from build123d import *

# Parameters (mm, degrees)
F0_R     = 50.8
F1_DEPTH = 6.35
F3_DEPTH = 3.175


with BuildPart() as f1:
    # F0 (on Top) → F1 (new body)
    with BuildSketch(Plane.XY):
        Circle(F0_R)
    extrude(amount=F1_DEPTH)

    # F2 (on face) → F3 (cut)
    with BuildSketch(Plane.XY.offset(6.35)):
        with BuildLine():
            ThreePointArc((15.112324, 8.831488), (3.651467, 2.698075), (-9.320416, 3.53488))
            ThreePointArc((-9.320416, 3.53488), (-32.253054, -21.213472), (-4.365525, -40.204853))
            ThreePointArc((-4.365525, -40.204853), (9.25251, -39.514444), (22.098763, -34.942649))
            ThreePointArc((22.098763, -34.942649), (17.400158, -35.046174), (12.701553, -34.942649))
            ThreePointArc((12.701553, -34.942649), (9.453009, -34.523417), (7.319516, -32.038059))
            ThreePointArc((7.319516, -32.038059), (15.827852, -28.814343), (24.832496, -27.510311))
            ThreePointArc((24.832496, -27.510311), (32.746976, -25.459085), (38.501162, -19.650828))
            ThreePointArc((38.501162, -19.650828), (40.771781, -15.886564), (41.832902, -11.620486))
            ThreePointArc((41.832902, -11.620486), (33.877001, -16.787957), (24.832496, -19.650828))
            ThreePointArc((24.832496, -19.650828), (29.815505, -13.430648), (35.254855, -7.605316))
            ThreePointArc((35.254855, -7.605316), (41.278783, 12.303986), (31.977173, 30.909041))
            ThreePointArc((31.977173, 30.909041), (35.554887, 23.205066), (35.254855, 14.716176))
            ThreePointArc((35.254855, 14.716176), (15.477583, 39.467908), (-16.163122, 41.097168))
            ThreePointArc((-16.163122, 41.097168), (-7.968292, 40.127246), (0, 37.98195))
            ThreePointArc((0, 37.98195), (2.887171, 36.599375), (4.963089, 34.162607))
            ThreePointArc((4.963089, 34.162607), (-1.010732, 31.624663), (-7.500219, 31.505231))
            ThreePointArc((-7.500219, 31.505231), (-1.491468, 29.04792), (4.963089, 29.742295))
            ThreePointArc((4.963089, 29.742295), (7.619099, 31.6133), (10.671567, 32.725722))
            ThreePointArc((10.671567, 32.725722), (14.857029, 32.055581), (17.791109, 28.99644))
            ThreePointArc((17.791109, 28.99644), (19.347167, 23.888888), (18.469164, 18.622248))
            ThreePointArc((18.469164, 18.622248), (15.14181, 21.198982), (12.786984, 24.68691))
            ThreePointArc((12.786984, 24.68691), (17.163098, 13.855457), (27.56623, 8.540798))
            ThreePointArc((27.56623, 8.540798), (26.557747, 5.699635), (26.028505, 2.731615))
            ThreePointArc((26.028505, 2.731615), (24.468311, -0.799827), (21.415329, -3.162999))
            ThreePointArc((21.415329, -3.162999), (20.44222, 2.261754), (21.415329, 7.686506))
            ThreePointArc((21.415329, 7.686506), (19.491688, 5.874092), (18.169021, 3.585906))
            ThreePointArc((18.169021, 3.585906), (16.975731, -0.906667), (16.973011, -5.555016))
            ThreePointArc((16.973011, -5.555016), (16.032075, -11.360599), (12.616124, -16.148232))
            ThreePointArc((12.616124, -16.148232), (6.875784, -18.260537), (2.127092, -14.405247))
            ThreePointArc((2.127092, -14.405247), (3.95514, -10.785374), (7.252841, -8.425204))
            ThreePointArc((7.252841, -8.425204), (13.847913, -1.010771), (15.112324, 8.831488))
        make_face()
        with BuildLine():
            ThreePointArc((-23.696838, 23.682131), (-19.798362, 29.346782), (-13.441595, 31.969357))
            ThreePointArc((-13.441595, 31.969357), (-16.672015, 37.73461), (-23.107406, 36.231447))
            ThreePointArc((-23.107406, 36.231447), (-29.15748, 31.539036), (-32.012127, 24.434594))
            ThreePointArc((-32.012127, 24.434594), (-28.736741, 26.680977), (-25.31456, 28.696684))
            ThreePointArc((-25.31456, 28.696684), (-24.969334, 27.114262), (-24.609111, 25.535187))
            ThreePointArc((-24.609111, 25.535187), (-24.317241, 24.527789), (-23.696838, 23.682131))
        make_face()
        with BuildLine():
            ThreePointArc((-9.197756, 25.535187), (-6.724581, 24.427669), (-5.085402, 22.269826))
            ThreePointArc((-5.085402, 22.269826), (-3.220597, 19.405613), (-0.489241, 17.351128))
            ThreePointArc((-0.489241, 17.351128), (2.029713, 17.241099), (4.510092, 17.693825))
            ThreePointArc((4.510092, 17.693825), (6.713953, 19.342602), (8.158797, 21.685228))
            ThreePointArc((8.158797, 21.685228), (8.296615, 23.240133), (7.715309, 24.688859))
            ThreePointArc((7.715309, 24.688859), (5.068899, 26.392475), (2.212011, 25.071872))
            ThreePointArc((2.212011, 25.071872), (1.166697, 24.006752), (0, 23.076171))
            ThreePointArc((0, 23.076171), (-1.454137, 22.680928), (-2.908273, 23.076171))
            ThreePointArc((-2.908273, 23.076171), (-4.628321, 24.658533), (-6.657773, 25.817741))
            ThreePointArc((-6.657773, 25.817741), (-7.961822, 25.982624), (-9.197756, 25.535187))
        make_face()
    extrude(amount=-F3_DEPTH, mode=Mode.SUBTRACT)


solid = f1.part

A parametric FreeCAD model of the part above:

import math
import FreeCAD as App
import Part
import Sketcher
from FreeCAD import Vector
Q = App.Units.Quantity

doc = App.newDocument("Part")
body = doc.addObject("PartDesign::Body", "Body")

sketch1 = doc.addObject("Sketcher::SketchObject", "Sketch")
body.addObject(sketch1)
sketch1.AttachmentSupport = (doc.XY_Plane, [""])
sketch1.MapMode = "FlatFace"
sketch1.addGeometry(Part.Circle(Vector(0, 0, 0), Vector(0, 0, 1), 51), False)
sketch1.addConstraint([
    Sketcher.Constraint("Coincident", 0, 3, -1, 1),
    Sketcher.Constraint("Diameter", 0, Q("4 in")),
])
pad1 = doc.addObject("PartDesign::Pad", "Pad")
body.addObject(pad1)
pad1.Profile = sketch1
pad1.Length = Q("0.25 in")

sketch2 = doc.addObject("Sketcher::SketchObject", "Sketch001")
body.addObject(sketch2)
sketch2.AttachmentSupport = (doc.XY_Plane, [""])
sketch2.MapMode = "FlatFace"
sketch2.AttachmentOffset = App.Placement(Vector(0, 0, 0.25 * 25.4), App.Rotation())
sketch2.addGeometry([
    Part.ArcOfCircle(Part.Circle(Vector(-1.367846, 25.851681, 0), Vector(0, 0, 1), 23.691412), math.radians(-109.613475), math.radians(-45.923523)),
    Part.ArcOfCircle(Part.Circle(Vector(-10.13657, -18.70809, 0), Vector(0, 0, 1), 22.257938), math.radians(87.898607), math.radians(285.027363)),
    Part.ArcOfCircle(Part.Circle(Vector(0.0898, 6.565982, 0), Vector(0, 0, 1), 46.982559), math.radians(-95.441497), math.radians(-62.066293)),
    Part.ArcOfCircle(Part.Circle(Vector(17.400158, 71.631471, 0), Vector(0, 0, 1), 106.677645), math.radians(-92.524403), math.radians(-87.475597)),
    Part.ArcOfCircle(Part.Circle(Vector(11.623308, -30.501977, 0), Vector(0, 0, 1), 4.569702), math.radians(-160.357832), math.radians(-76.352068)),
    Part.ArcOfCircle(Part.Circle(Vector(26.278416, -69.236319, 0), Vector(0, 0, 1), 41.751053), math.radians(91.984661), math.radians(117.006651)),
    Part.ArcOfCircle(Part.Circle(Vector(25.058396, -12.087643, 0), Vector(0, 0, 1), 15.424322), math.radians(-90.839168), math.radians(-29.363028)),
    Part.ArcOfCircle(Part.Circle(Vector(27.140244, -10.230922, 0), Vector(0, 0, 1), 14.758221), math.radians(-39.663828), math.radians(-5.402701)),
    Part.ArcOfCircle(Part.Circle(Vector(18.795437, 15.140038, 0), Vector(0, 0, 1), 35.31077), math.radians(-80.155816), math.radians(-49.275664)),
    Part.ArcOfCircle(Part.Circle(Vector(109.417519, -82.306157, 0), Vector(0, 0, 1), 105.263082), math.radians(134.792863), math.radians(143.471251)),
    Part.ArcOfCircle(Part.Circle(Vector(13.24995, 9.918652, 0), Vector(0, 0, 1), 28.13015), math.radians(-38.532639), math.radians(48.261267)),
    Part.ArcOfCircle(Part.Circle(Vector(17.680728, 19.587064, 0), Vector(0, 0, 1), 18.236652), math.radians(-15.491377), math.radians(38.377235)),
    Part.ArcOfCircle(Part.Circle(Vector(-2.154281, 5.102453, 0), Vector(0, 0, 1), 38.624696), math.radians(14.412485), math.radians(111.26557)),
    Part.ArcOfCircle(Part.Circle(Vector(-18.734633, -15.733267, 0), Vector(0, 0, 1), 56.888584), math.radians(70.772402), math.radians(87.4092)),
    Part.ArcOfCircle(Part.Circle(Vector(-1.810964, 30.49433, 0), Vector(0, 0, 1), 7.703509), math.radians(28.436381), math.radians(76.403487)),
    Part.ArcOfCircle(Part.Circle(Vector(-4.56321, 48.286069, 0), Vector(0, 0, 1), 17.035919), math.radians(-99.927447), math.radians(-56.000269)),
    Part.ArcOfCircle(Part.Circle(Vector(0.362861, 42.157346, 0), Vector(0, 0, 1), 13.239924), math.radians(-126.433662), math.radians(-69.6685)),
    Part.ArcOfCircle(Part.Circle(Vector(13.330927, 20.684309, 0), Vector(0, 0, 1), 12.331578), math.radians(102.453926), math.radians(132.731992)),
    Part.ArcOfCircle(Part.Circle(Vector(11.765743, 26.154034, 0), Vector(0, 0, 1), 6.662155), math.radians(25.255126), math.radians(99.452947)),
    Part.ArcOfCircle(Part.Circle(Vector(7.684711, 23.126633, 0), Vector(0, 0, 1), 11.68734), math.radians(-22.669023), math.radians(30.148066)),
    Part.ArcOfCircle(Part.Circle(Vector(24.839711, 30.285263, 0), Vector(0, 0, 1), 13.289461), math.radians(-155.085675), math.radians(-118.644156)),
    Part.ArcOfCircle(Part.Circle(Vector(29.483531, 25.132891, 0), Vector(0, 0, 1), 16.702502), math.radians(-178.469939), math.radians(-96.591585)),
    Part.ArcOfCircle(Part.Circle(Vector(44.28176, 1.007985, 0), Vector(0, 0, 1), 18.334455), math.radians(155.741406), math.radians(174.605632)),
    Part.ArcOfCircle(Part.Circle(Vector(18.276059, 4.046283, 0), Vector(0, 0, 1), 7.863127), math.radians(-66.469365), math.radians(-9.624718)),
    Part.ArcOfCircle(Part.Circle(Vector(36.049352, 2.261754, 0), Vector(0, 0, 1), 15.607132), math.radians(159.660531), math.radians(200.339469)),
    Part.ArcOfCircle(Part.Circle(Vector(26.636788, 0.217555, 0), Vector(0, 0, 1), 9.113115), math.radians(124.956959), math.radians(158.308076)),
    Part.ArcOfCircle(Part.Circle(Vector(34.818846, -3.241283, 0), Vector(0, 0, 1), 17.995199), math.radians(157.704129), math.radians(187.387255)),
    Part.ArcOfCircle(Part.Circle(Vector(4.078418, -6.444176, 0), Vector(0, 0, 1), 12.925213), math.radians(-48.658425), math.radians(3.944644)),
    Part.ArcOfCircle(Part.Circle(Vector(7.889592, -12.159588, 0), Vector(0, 0, 1), 6.184609), math.radians(-158.709023), math.radians(-40.160482)),
    Part.ArcOfCircle(Part.Circle(Vector(10.405775, -16.314488, 0), Vector(0, 0, 1), 8.495987), math.radians(111.784006), math.radians(167.013428)),
    Part.ArcOfCircle(Part.Circle(Vector(-1.450816, 5.956967, 0), Vector(0, 0, 1), 16.810725), math.radians(-58.818935), math.radians(9.845576)),
    Part.ArcOfCircle(Part.Circle(Vector(-12.199454, 19.943316, 0), Vector(0, 0, 1), 12.09002), math.radians(95.897033), math.radians(161.986079)),
    Part.ArcOfCircle(Part.Circle(Vector(-18.890229, 32.704017, 0), Vector(0, 0, 1), 5.49794), math.radians(-7.679094), math.radians(140.089422)),
    Part.ArcOfCircle(Part.Circle(Vector(-17.470739, 22.717432, 0), Vector(0, 0, 1), 14.642425), math.radians(112.640915), math.radians(173.265251)),
    Part.ArcOfCircle(Part.Circle(Vector(2.236825, -21.991747, 0), Vector(0, 0, 1), 57.692251), math.radians(118.52602), math.radians(126.416388)),
    Part.ArcOfCircle(Part.Circle(Vector(141.650699, 64.293464, 0), Vector(0, 0, 1), 170.717686), math.radians(-167.964802), math.radians(-166.877639)),
    Part.ArcOfCircle(Part.Circle(Vector(-21.622118, 25.854618, 0), Vector(0, 0, 1), 3.004024), math.radians(-173.89595), math.radians(-133.68133)),
    Part.ArcOfCircle(Part.Circle(Vector(-10.129311, 20.139795, 0), Vector(0, 0, 1), 5.475221), math.radians(22.894221), math.radians(80.204033)),
    Part.ArcOfCircle(Part.Circle(Vector(3.975893, 26.130203, 0), Vector(0, 0, 1), 9.849344), math.radians(-156.924577), math.radians(-116.958389)),
    Part.ArcOfCircle(Part.Circle(Vector(1.258967, 28.484903, 0), Vector(0, 0, 1), 11.270189), math.radians(-98.923634), math.radians(-73.23355)),
    Part.ArcOfCircle(Part.Circle(Vector(1.276855, 24.312876, 0), Vector(0, 0, 1), 7.366523), math.radians(-63.965675), math.radians(-20.897749)),
    Part.ArcOfCircle(Part.Circle(Vector(4.980449, 22.750499, 0), Vector(0, 0, 1), 3.352119), math.radians(-18.529349), math.radians(35.327495)),
    Part.ArcOfCircle(Part.Circle(Vector(4.842033, 23.132775, 0), Vector(0, 0, 1), 3.267585), math.radians(28.438708), math.radians(143.598903)),
    Part.ArcOfCircle(Part.Circle(Vector(-7.066671, 33.132518, 0), Vector(0, 0, 1), 12.290971), math.radians(-54.903997), math.radians(-40.981743)),
    Part.ArcOfCircle(Part.Circle(Vector(-1.454136, 25.553503, 0), Vector(0, 0, 1), 2.872575), math.radians(-120.411951), math.radians(-59.588049)),
    Part.ArcOfCircle(Part.Circle(Vector(-10.778818, 16.246824, 0), Vector(0, 0, 1), 10.420435), math.radians(40.948485), math.radians(66.704255)),
    Part.ArcOfCircle(Part.Circle(Vector(-7.651776, 23.195499, 0), Vector(0, 0, 1), 2.804318), math.radians(69.239989), math.radians(123.455264)),
], False)
sketch2.addConstraint([
    Sketcher.Constraint("Coincident", 0, 1, 1, 1),
    Sketcher.Constraint("Coincident", 1, 2, 2, 1),
    Sketcher.Constraint("Coincident", 2, 2, 3, 2),
    Sketcher.Constraint("Coincident", 3, 1, 4, 2),
    Sketcher.Constraint("Coincident", 4, 1, 5, 2),
    Sketcher.Constraint("Coincident", 5, 1, 6, 1),
    Sketcher.Constraint("Coincident", 6, 2, 7, 1),
    Sketcher.Constraint("Coincident", 7, 2, 8, 2),
    Sketcher.Constraint("Coincident", 8, 1, 9, 2),
    Sketcher.Constraint("Coincident", 9, 1, 10, 1),
    Sketcher.Constraint("Coincident", 10, 2, 11, 2),
    Sketcher.Constraint("Coincident", 11, 1, 12, 1),
    Sketcher.Constraint("Coincident", 12, 2, 13, 2),
    Sketcher.Constraint("Coincident", 13, 1, 14, 2),
    Sketcher.Constraint("Coincident", 14, 1, 15, 2),
    Sketcher.Constraint("Coincident", 15, 1, 16, 1),
    Sketcher.Constraint("Coincident", 16, 2, 17, 2),
    Sketcher.Constraint("Coincident", 17, 1, 18, 2),
    Sketcher.Constraint("Coincident", 18, 1, 19, 2),
    Sketcher.Constraint("Coincident", 19, 1, 20, 2),
    Sketcher.Constraint("Coincident", 20, 1, 21, 1),
    Sketcher.Constraint("Coincident", 21, 2, 22, 1),
    Sketcher.Constraint("Coincident", 22, 2, 23, 2),
    Sketcher.Constraint("Coincident", 23, 1, 24, 2),
    Sketcher.Constraint("Coincident", 24, 1, 25, 1),
    Sketcher.Constraint("Coincident", 25, 2, 26, 1),
    Sketcher.Constraint("Coincident", 26, 2, 27, 2),
    Sketcher.Constraint("Coincident", 27, 1, 28, 2),
    Sketcher.Constraint("Coincident", 28, 1, 29, 2),
    Sketcher.Constraint("Coincident", 29, 1, 30, 1),
    Sketcher.Constraint("Coincident", 30, 2, 0, 2),
    Sketcher.Constraint("Coincident", 31, 1, 32, 1),
    Sketcher.Constraint("Coincident", 32, 2, 33, 1),
    Sketcher.Constraint("Coincident", 33, 2, 34, 2),
    Sketcher.Constraint("Coincident", 34, 1, 35, 1),
    Sketcher.Constraint("Coincident", 35, 2, 36, 1),
    Sketcher.Constraint("Coincident", 36, 2, 31, 2),
    Sketcher.Constraint("Coincident", 37, 1, 38, 1),
    Sketcher.Constraint("Coincident", 38, 2, 39, 1),
    Sketcher.Constraint("Coincident", 39, 2, 40, 1),
    Sketcher.Constraint("Coincident", 40, 2, 41, 1),
    Sketcher.Constraint("Coincident", 41, 2, 42, 1),
    Sketcher.Constraint("Coincident", 42, 2, 43, 2),
    Sketcher.Constraint("Coincident", 43, 1, 44, 2),
    Sketcher.Constraint("Coincident", 44, 1, 45, 1),
    Sketcher.Constraint("Coincident", 45, 2, 46, 1),
    Sketcher.Constraint("Coincident", 46, 2, 37, 2),
    Sketcher.Constraint("PointOnObject", 13, 1, -2),
    Sketcher.Constraint("PointOnObject", 43, 1, -2),
    Sketcher.Constraint("Radius", 4, Q("4.569702 mm")),
    Sketcher.Constraint("Radius", 26, Q("17.995199 mm")),
    Sketcher.Constraint("Radius", 0, Q("23.691412 mm")),
    Sketcher.Constraint("Radius", 2, Q("46.982559 mm")),
    Sketcher.Constraint("Radius", 7, Q("14.758221 mm")),
    Sketcher.Constraint("Radius", 8, Q("35.31077 mm")),
    Sketcher.Constraint("Radius", 9, Q("105.263082 mm")),
    Sketcher.Constraint("Radius", 10, Q("28.13015 mm")),
    Sketcher.Constraint("Radius", 14, Q("7.703509 mm")),
    Sketcher.Constraint("Radius", 15, Q("17.035919 mm")),
    Sketcher.Constraint("Radius", 19, Q("11.68734 mm")),
    Sketcher.Constraint("Radius", 20, Q("13.289461 mm")),
    Sketcher.Constraint("Radius", 24, Q("15.607132 mm")),
    Sketcher.Constraint("Radius", 28, Q("6.184609 mm")),
    Sketcher.Constraint("Radius", 31, Q("12.09002 mm")),
    Sketcher.Constraint("Radius", 32, Q("5.49794 mm")),
    Sketcher.Constraint("Radius", 34, Q("57.692251 mm")),
    Sketcher.Constraint("Radius", 37, Q("5.475221 mm")),
    Sketcher.Constraint("Radius", 39, Q("11.270189 mm")),
    Sketcher.Constraint("Radius", 41, Q("3.352119 mm")),
    Sketcher.Constraint("Radius", 43, Q("12.290971 mm")),
    Sketcher.Constraint("DistanceY", 9, 3, -1, 1, Q("3.2403999 in")),
    Sketcher.Constraint("DistanceY", -1, 1, 40, 3, Q("0.9571999 in")),
    Sketcher.Constraint("Radius", 1, Q("22.257938 mm")),
    Sketcher.Constraint("Radius", 3, Q("106.677645 mm")),
    Sketcher.Constraint("Radius", 5, Q("41.751053 mm")),
    Sketcher.Constraint("Radius", 6, Q("15.424322 mm")),
    Sketcher.Constraint("Radius", 11, Q("18.236652 mm")),
    Sketcher.Constraint("Radius", 12, Q("38.624696 mm")),
    Sketcher.Constraint("Radius", 13, Q("56.888584 mm")),
    Sketcher.Constraint("Radius", 16, Q("13.239924 mm")),
    Sketcher.Constraint("Radius", 17, Q("12.331578 mm")),
    Sketcher.Constraint("Radius", 18, Q("6.662155 mm")),
    Sketcher.Constraint("Radius", 21, Q("16.702502 mm")),
    Sketcher.Constraint("Radius", 22, Q("18.334455 mm")),
    Sketcher.Constraint("Radius", 23, Q("7.863127 mm")),
    Sketcher.Constraint("Radius", 25, Q("9.113115 mm")),
    Sketcher.Constraint("Radius", 27, Q("12.925213 mm")),
    Sketcher.Constraint("Radius", 29, Q("8.495987 mm")),
    Sketcher.Constraint("Radius", 30, Q("16.810725 mm")),
    Sketcher.Constraint("Radius", 33, Q("14.642425 mm")),
    Sketcher.Constraint("Radius", 35, Q("170.717686 mm")),
    Sketcher.Constraint("Radius", 36, Q("3.004024 mm")),
    Sketcher.Constraint("Radius", 38, Q("9.849344 mm")),
    Sketcher.Constraint("Radius", 40, Q("7.366523 mm")),
    Sketcher.Constraint("Radius", 42, Q("3.267585 mm")),
    Sketcher.Constraint("Radius", 44, Q("2.872575 mm")),
    Sketcher.Constraint("Radius", 45, Q("10.420435 mm")),
    Sketcher.Constraint("Radius", 46, Q("2.804318 mm")),
    Sketcher.Constraint("DistanceX", -1, 1, 2, 3, Q("0.0898 mm")),
    Sketcher.Constraint("DistanceX", -1, 1, 35, 3, Q("141.650699 mm")),
    Sketcher.Constraint("DistanceY", -1, 1, 41, 3, Q("22.750499 mm")),
    Sketcher.Constraint("DistanceY", -1, 1, 46, 3, Q("23.195499 mm")),
    Sketcher.Constraint("DistanceY", 23, 1, -1, 1, Q("3.162999 mm")),
    Sketcher.Constraint("DistanceX", 37, 1, -1, 1, Q("5.085402 mm")),
    Sketcher.Constraint("DistanceY", -1, 1, 0, 3, Q("25.851681 mm")),
    Sketcher.Constraint("DistanceX", 1, 3, -1, 1, Q("10.13657 mm")),
    Sketcher.Constraint("DistanceY", 1, 3, -1, 1, Q("18.70809 mm")),
    Sketcher.Constraint("DistanceY", -1, 1, 2, 3, Q("6.565982 mm")),
    Sketcher.Constraint("DistanceX", -1, 1, 3, 3, Q("17.400158 mm")),
    Sketcher.Constraint("DistanceY", -1, 1, 3, 3, Q("71.631471 mm")),
    Sketcher.Constraint("DistanceX", -1, 1, 4, 3, Q("11.623308 mm")),
    Sketcher.Constraint("DistanceY", 5, 3, -1, 1, Q("69.236319 mm")),
    Sketcher.Constraint("DistanceY", -1, 1, 8, 3, Q("15.140038 mm")),
    Sketcher.Constraint("DistanceX", -1, 1, 9, 3, Q("109.417519 mm")),
    Sketcher.Constraint("DistanceX", -1, 1, 10, 3, Q("13.24995 mm")),
    Sketcher.Constraint("DistanceX", -1, 1, 11, 3, Q("17.680728 mm")),
    Sketcher.Constraint("DistanceX", 12, 3, -1, 1, Q("2.154281 mm")),
    Sketcher.Constraint("DistanceY", -1, 1, 14, 3, Q("30.49433 mm")),
    Sketcher.Constraint("DistanceX", 15, 3, -1, 1, Q("4.56321 mm")),
    Sketcher.Constraint("DistanceY", -1, 1, 15, 3, Q("48.286069 mm")),
    Sketcher.Constraint("DistanceX", -1, 1, 16, 3, Q("0.362861 mm")),
    Sketcher.Constraint("DistanceY", -1, 1, 17, 3, Q("20.684309 mm")),
    Sketcher.Constraint("DistanceX", -1, 1, 19, 3, Q("7.684711 mm")),
    Sketcher.Constraint("DistanceX", -1, 1, 20, 3, Q("24.839711 mm")),
    Sketcher.Constraint("DistanceX", -1, 1, 21, 3, Q("29.483531 mm")),
    Sketcher.Constraint("DistanceY", -1, 1, 21, 3, Q("25.132891 mm")),
    Sketcher.Constraint("DistanceX", -1, 1, 22, 3, Q("44.28176 mm")),
    Sketcher.Constraint("DistanceX", -1, 1, 23, 3, Q("18.276059 mm")),
    Sketcher.Constraint("DistanceX", -1, 1, 24, 3, Q("36.049352 mm")),
    Sketcher.Constraint("DistanceX", -1, 1, 27, 3, Q("4.078418 mm")),
    Sketcher.Constraint("DistanceX", -1, 1, 28, 3, Q("7.889592 mm")),
    Sketcher.Constraint("DistanceY", 29, 3, -1, 1, Q("16.314488 mm")),
    Sketcher.Constraint("DistanceX", 32, 3, -1, 1, Q("18.890229 mm")),
    Sketcher.Constraint("DistanceX", 33, 3, -1, 1, Q("17.470739 mm")),
    Sketcher.Constraint("DistanceX", 36, 3, -1, 1, Q("21.622118 mm")),
    Sketcher.Constraint("DistanceY", -1, 1, 36, 3, Q("25.854618 mm")),
    Sketcher.Constraint("DistanceX", 37, 3, -1, 1, Q("10.129311 mm")),
    Sketcher.Constraint("DistanceX", -1, 1, 41, 3, Q("4.980449 mm")),
    Sketcher.Constraint("DistanceX", 43, 3, -1, 1, Q("7.066671 mm")),
    Sketcher.Constraint("DistanceY", -1, 1, 43, 3, Q("33.132518 mm")),
    Sketcher.Constraint("DistanceX", 45, 3, -1, 1, Q("10.778818 mm")),
    Sketcher.Constraint("DistanceY", -1, 1, 0, 1, Q("3.53488 mm")),
    Sketcher.Constraint("DistanceY", 3, 1, -1, 1, Q("34.942649 mm")),
    Sketcher.Constraint("DistanceY", 4, 1, -1, 1, Q("32.038059 mm")),
    Sketcher.Constraint("DistanceY", 5, 1, -1, 1, Q("27.510311 mm")),
    Sketcher.Constraint("DistanceY", 6, 2, -1, 1, Q("19.650828 mm")),
    Sketcher.Constraint("DistanceY", -1, 1, 10, 2, Q("30.909041 mm")),
    Sketcher.Constraint("DistanceX", 12, 2, -1, 1, Q("16.163122 mm")),
    Sketcher.Constraint("DistanceY", -1, 1, 13, 1, Q("37.98195 mm")),
    Sketcher.Constraint("DistanceX", 15, 1, -1, 1, Q("7.500219 mm")),
    Sketcher.Constraint("DistanceX", -1, 1, 16, 2, Q("4.963089 mm")),
    Sketcher.Constraint("DistanceX", -1, 1, 18, 1, Q("17.791109 mm")),
    Sketcher.Constraint("DistanceY", -1, 1, 18, 1, Q("28.99644 mm")),
    Sketcher.Constraint("DistanceY", -1, 1, 19, 1, Q("18.622248 mm")),
    Sketcher.Constraint("DistanceX", -1, 1, 21, 2, Q("27.56623 mm")),
    Sketcher.Constraint("DistanceX", -1, 1, 23, 1, Q("21.415329 mm")),
    Sketcher.Constraint("DistanceX", -1, 1, 24, 1, Q("21.415329 mm")),
    Sketcher.Constraint("DistanceX", -1, 1, 25, 2, Q("18.169021 mm")),
    Sketcher.Constraint("DistanceX", -1, 1, 26, 2, Q("16.973011 mm")),
    Sketcher.Constraint("DistanceX", -1, 1, 28, 1, Q("2.127092 mm")),
    Sketcher.Constraint("DistanceX", -1, 1, 29, 1, Q("7.252841 mm")),
    Sketcher.Constraint("DistanceX", 34, 1, -1, 1, Q("25.31456 mm")),
    Sketcher.Constraint("DistanceX", 35, 2, -1, 1, Q("24.609111 mm")),
    Sketcher.Constraint("DistanceY", -1, 1, 36, 2, Q("23.682131 mm")),
    Sketcher.Constraint("DistanceX", 38, 2, -1, 1, Q("0.489241 mm")),
    Sketcher.Constraint("DistanceY", -1, 1, 40, 2, Q("21.685228 mm")),
    Sketcher.Constraint("DistanceX", -1, 1, 41, 2, Q("7.715309 mm")),
    Sketcher.Constraint("DistanceX", -1, 1, 42, 2, Q("2.212011 mm")),
    Sketcher.Constraint("DistanceY", -1, 1, 44, 1, Q("23.076171 mm")),
    Sketcher.Constraint("DistanceY", -1, 1, 45, 2, Q("25.817741 mm")),
    Sketcher.Constraint("DistanceX", -1, 1, 6, 3, Q("25.058396 mm")),
    Sketcher.Constraint("DistanceX", -1, 1, 7, 3, Q("27.140244 mm")),
    Sketcher.Constraint("DistanceX", -1, 1, 8, 3, Q("18.795437 mm")),
    Sketcher.Constraint("DistanceY", -1, 1, 10, 3, Q("9.918652 mm")),
    Sketcher.Constraint("DistanceY", -1, 1, 12, 3, Q("5.102453 mm")),
    Sketcher.Constraint("DistanceX", -1, 1, 18, 3, Q("11.765743 mm")),
    Sketcher.Constraint("DistanceX", -1, 1, 25, 3, Q("26.636788 mm")),
    Sketcher.Constraint("DistanceX", -1, 1, 26, 3, Q("34.818846 mm")),
    Sketcher.Constraint("DistanceY", 28, 3, -1, 1, Q("12.159588 mm")),
    Sketcher.Constraint("DistanceX", 30, 3, -1, 1, Q("1.450816 mm")),
    Sketcher.Constraint("DistanceX", 31, 3, -1, 1, Q("12.199454 mm")),
    Sketcher.Constraint("DistanceY", -1, 1, 32, 3, Q("32.704017 mm")),
    Sketcher.Constraint("DistanceY", -1, 1, 33, 3, Q("22.717432 mm")),
    Sketcher.Constraint("DistanceX", -1, 1, 34, 3, Q("2.236825 mm")),
    Sketcher.Constraint("DistanceY", -1, 1, 37, 3, Q("20.139795 mm")),
    Sketcher.Constraint("DistanceX", -1, 1, 38, 3, Q("3.975893 mm")),
    Sketcher.Constraint("DistanceX", -1, 1, 39, 3, Q("1.258967 mm")),
    Sketcher.Constraint("DistanceX", 44, 3, -1, 1, Q("1.454136 mm")),
])
pocket1 = doc.addObject("PartDesign::Pocket", "Pocket")
body.addObject(pocket1)
pocket1.Profile = sketch2
pocket1.Length = Q("0.125 in")

doc.recompute()
